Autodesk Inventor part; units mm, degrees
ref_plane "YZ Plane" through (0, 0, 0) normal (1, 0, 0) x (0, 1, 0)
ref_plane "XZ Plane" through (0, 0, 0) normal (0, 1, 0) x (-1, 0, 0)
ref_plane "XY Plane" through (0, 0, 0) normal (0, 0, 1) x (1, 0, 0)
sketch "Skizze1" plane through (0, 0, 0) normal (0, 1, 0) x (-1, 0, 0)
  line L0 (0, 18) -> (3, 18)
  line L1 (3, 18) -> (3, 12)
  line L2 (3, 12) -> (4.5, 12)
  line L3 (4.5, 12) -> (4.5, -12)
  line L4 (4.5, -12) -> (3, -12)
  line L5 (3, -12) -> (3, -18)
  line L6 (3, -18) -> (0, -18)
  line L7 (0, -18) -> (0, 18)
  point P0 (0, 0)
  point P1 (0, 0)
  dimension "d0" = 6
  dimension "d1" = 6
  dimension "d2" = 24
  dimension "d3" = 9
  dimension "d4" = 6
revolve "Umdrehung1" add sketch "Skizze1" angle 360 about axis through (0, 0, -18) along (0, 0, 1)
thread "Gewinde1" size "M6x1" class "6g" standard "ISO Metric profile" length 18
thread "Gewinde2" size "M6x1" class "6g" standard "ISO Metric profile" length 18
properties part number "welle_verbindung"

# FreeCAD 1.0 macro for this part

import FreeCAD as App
import Part
import Sketcher
from FreeCAD import Vector

doc = App.newDocument("Part")
body = doc.addObject("PartDesign::Body", "Body")

# Sketch on XZ plane
sketch1 = body.newObject("Sketcher::SketchObject", "Sketch")
sketch1.AttachmentSupport = (doc.getObject("XZ_Plane"), [""])
sketch1.MapMode = "FlatFace"
sketch1.addGeometry([
    Part.LineSegment(Vector(-3, 18, 0), Vector(0, 18, 0)),  # 0
    Part.LineSegment(Vector(0, 18, 0), Vector(0, -18, 0)),  # 1
    Part.LineSegment(Vector(0, -18, 0), Vector(-3, -18, 0)),  # 2
    Part.LineSegment(Vector(-3, -18, 0), Vector(-3, -12, 0)),  # 3
    Part.LineSegment(Vector(-3, -12, 0), Vector(-4.5, -12, 0)),  # 4
    Part.LineSegment(Vector(-4.5, -12, 0), Vector(-4.5, 12, 0)),  # 5
    Part.LineSegment(Vector(-4.5, 12, 0), Vector(-3, 12, 0)),  # 6
    Part.LineSegment(Vector(-3, 12, 0), Vector(-3, 18, 0)),  # 7
], False)
sketch1.addConstraint([
    Sketcher.Constraint("Coincident", 0, 2, 1, 1),
    Sketcher.Constraint("Coincident", 1, 2, 2, 1),
    Sketcher.Constraint("Coincident", 2, 2, 3, 1),
    Sketcher.Constraint("Coincident", 3, 2, 4, 1),
    Sketcher.Constraint("Coincident", 4, 2, 5, 1),
    Sketcher.Constraint("Coincident", 5, 2, 6, 1),
    Sketcher.Constraint("Coincident", 6, 2, 7, 1),
    Sketcher.Constraint("Coincident", 7, 2, 0, 1),
    Sketcher.Constraint("Horizontal", 0),
    Sketcher.Constraint("Vertical", 1),
    Sketcher.Constraint("Horizontal", 2),
    Sketcher.Constraint("Vertical", 3),
    Sketcher.Constraint("Horizontal", 4),
    Sketcher.Constraint("Vertical", 5),
    Sketcher.Constraint("Horizontal", 6),
    Sketcher.Constraint("Vertical", 7),
    Sketcher.Constraint("Symmetric", 0, 2, 1, 2, -1, 1),
    Sketcher.Constraint("Symmetric", 3, 2, 6, 2, -1),
    Sketcher.Constraint("DistanceY", 3, 1, 3, 2, 6.0),
    Sketcher.Constraint("DistanceY", 5, 1, 5, 2, 24.0),
    Sketcher.Constraint("DistanceX", 0, 1, 0, 2, 3.0),
    Sketcher.Constraint("DistanceX", 4, 2, 4, 1, 1.5),
])
revolution = body.newObject("PartDesign::Revolution", "Revolution")
revolution.Profile = sketch1
revolution.ReferenceAxis = (sketch1, ["V_Axis"])
revolution.Angle = 360

doc.recompute()
